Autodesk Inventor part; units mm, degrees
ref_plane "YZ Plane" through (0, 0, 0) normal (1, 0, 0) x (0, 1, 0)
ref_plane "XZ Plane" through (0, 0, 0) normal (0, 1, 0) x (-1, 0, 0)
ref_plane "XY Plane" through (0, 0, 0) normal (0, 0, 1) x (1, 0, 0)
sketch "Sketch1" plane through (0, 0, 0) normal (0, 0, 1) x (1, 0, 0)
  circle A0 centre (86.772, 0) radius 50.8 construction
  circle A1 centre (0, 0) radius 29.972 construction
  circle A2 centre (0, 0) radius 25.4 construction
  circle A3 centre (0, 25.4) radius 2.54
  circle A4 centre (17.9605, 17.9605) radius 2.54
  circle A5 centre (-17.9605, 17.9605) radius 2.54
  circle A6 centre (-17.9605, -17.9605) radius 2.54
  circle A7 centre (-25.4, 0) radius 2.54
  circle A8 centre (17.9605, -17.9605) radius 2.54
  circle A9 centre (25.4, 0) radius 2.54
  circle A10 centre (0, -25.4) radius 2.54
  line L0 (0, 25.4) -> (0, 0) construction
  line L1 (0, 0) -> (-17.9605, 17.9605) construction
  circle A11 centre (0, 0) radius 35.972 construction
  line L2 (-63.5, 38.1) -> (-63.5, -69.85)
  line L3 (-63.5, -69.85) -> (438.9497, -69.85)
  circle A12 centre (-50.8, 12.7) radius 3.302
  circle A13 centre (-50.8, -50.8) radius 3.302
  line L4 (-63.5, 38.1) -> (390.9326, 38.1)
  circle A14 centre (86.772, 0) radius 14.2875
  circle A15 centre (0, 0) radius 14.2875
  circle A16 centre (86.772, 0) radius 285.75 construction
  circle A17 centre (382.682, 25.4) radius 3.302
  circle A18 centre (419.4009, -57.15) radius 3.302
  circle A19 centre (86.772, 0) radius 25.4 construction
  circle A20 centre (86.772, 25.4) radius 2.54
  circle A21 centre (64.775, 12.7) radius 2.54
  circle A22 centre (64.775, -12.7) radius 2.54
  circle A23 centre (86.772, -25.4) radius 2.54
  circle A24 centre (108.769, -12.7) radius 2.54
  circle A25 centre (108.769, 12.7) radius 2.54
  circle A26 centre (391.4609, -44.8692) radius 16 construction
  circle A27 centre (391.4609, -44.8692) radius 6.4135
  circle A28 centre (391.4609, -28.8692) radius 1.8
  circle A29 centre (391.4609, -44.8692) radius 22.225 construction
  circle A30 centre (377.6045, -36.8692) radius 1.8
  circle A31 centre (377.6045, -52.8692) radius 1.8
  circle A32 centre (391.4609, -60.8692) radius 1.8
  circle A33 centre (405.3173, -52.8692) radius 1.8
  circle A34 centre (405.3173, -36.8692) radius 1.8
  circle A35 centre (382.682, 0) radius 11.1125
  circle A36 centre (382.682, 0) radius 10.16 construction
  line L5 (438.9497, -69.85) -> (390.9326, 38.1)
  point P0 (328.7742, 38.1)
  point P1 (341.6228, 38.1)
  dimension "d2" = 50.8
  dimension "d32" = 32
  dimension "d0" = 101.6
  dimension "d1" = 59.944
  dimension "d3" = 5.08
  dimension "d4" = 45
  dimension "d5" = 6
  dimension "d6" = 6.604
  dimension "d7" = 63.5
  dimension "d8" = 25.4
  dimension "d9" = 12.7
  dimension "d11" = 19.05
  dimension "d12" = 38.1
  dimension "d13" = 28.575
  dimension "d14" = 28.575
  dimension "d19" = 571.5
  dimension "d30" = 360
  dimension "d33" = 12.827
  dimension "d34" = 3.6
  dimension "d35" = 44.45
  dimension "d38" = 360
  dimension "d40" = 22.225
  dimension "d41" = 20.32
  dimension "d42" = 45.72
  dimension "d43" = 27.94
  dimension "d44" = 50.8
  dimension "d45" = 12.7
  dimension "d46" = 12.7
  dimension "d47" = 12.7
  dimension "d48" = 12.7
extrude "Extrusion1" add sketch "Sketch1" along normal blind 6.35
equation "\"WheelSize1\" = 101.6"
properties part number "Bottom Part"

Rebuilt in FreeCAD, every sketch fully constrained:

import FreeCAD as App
import Part
import Sketcher
from FreeCAD import Vector
Q = App.Units.Quantity


def add_polygon(sketch, points):
    """Adds a closed chain of lines whose ends are joined by coincident constraints."""
    first, n = sketch.GeometryCount, len(points)
    for a, b in zip(points, points[1:] + points[:1]):
        sketch.addGeometry(Part.LineSegment(App.Vector(*a, 0), App.Vector(*b, 0)), False)
    for i in range(n):
        sketch.addConstraint(Sketcher.Constraint("Coincident", first + i, 2, first + (i + 1) % n, 1))

doc = App.newDocument("Part")
body = doc.addObject("PartDesign::Body", "Body")

sketch1 = body.newObject("Sketcher::SketchObject", "Sketch")
sketch1.AttachmentSupport = (doc.getObject("XY_Plane"), [""])
sketch1.MapMode = "FlatFace"
add_polygon(sketch1, [(390.9, 38.1), (-63.5, 38.1), (-63.5, -69.8), (438.9, -69.8)])
sketch1.addGeometry(Part.Circle(Vector(-50.8, -50.8, 0), Vector(0, 0, 1), 3.3), False)
sketch1.addGeometry(Part.Circle(Vector(-18, -18, 0), Vector(0, 0, 1), 2.5), False)
sketch1.addGeometry(Part.Circle(Vector(0, -25.4, 0), Vector(0, 0, 1), 2.5), False)
sketch1.addGeometry(Part.Circle(Vector(18, -18, 0), Vector(0, 0, 1), 2.5), False)
sketch1.addGeometry(Part.Circle(Vector(86.8, -25.4, 0), Vector(0, 0, 1), 2.5), False)
sketch1.addGeometry(Part.Circle(Vector(391.5, -60.9, 0), Vector(0, 0, 1), 1.8), False)
sketch1.addGeometry(Part.Circle(Vector(419.4, -57.1, 0), Vector(0, 0, 1), 3.3), False)
sketch1.addGeometry(Part.Circle(Vector(377.6, -52.9, 0), Vector(0, 0, 1), 1.8), False)
sketch1.addGeometry(Part.Circle(Vector(405.3, -52.9, 0), Vector(0, 0, 1), 1.8), False)
sketch1.addGeometry(Part.Circle(Vector(391.5, -44.9, 0), Vector(0, 0, 1), 6.4), False)
sketch1.addGeometry(Part.Circle(Vector(377.6, -36.9, 0), Vector(0, 0, 1), 1.8), False)
sketch1.addGeometry(Part.Circle(Vector(405.3, -36.9, 0), Vector(0, 0, 1), 1.8), False)
sketch1.addGeometry(Part.Circle(Vector(391.5, -28.9, 0), Vector(0, 0, 1), 1.8), False)
sketch1.addGeometry(Part.Circle(Vector(-25.4, 0, 0), Vector(0, 0, 1), 2.5), False)
sketch1.addGeometry(Part.Circle(Vector(0, 0, 0), Vector(0, 0, 1), 14.3), False)
sketch1.addGeometry(Part.Circle(Vector(25.4, 0, 0), Vector(0, 0, 1), 2.5), False)
sketch1.addGeometry(Part.Circle(Vector(64.8, -12.7, 0), Vector(0, 0, 1), 2.5), False)
sketch1.addGeometry(Part.Circle(Vector(108.8, -12.7, 0), Vector(0, 0, 1), 2.5), False)
sketch1.addGeometry(Part.Circle(Vector(86.8, 0, 0), Vector(0, 0, 1), 14.3), False)
sketch1.addGeometry(Part.Circle(Vector(-50.8, 12.7, 0), Vector(0, 0, 1), 3.3), False)
sketch1.addGeometry(Part.Circle(Vector(-18, 18, 0), Vector(0, 0, 1), 2.5), False)
sketch1.addGeometry(Part.Circle(Vector(18, 18, 0), Vector(0, 0, 1), 2.5), False)
sketch1.addGeometry(Part.Circle(Vector(0, 25.4, 0), Vector(0, 0, 1), 2.5), False)
sketch1.addGeometry(Part.Circle(Vector(64.8, 12.7, 0), Vector(0, 0, 1), 2.5), False)
sketch1.addGeometry(Part.Circle(Vector(108.8, 12.7, 0), Vector(0, 0, 1), 2.5), False)
sketch1.addGeometry(Part.Circle(Vector(86.8, 25.4, 0), Vector(0, 0, 1), 2.5), False)
sketch1.addGeometry(Part.Circle(Vector(382.7, 0, 0), Vector(0, 0, 1), 11.1), False)
sketch1.addGeometry(Part.Circle(Vector(382.7, 25.4, 0), Vector(0, 0, 1), 3.3), False)
sketch1.addConstraint([
    Sketcher.Constraint("Horizontal", 0),
    Sketcher.Constraint("Vertical", 1),
    Sketcher.Constraint("Horizontal", 2),
    Sketcher.Constraint("Coincident", 18, 3, -1, 1),
    Sketcher.Constraint("Equal", 5, 6),
    Sketcher.Constraint("Equal", 6, 7),
    Sketcher.Constraint("Equal", 7, 8),
    Sketcher.Constraint("Equal", 4, 10),
    Sketcher.Constraint("Equal", 9, 11),
    Sketcher.Constraint("Equal", 11, 12),
    Sketcher.Constraint("Equal", 12, 14),
    Sketcher.Constraint("Equal", 14, 15),
    Sketcher.Constraint("Equal", 15, 16),
    Sketcher.Constraint("Equal", 8, 17),
    Sketcher.Constraint("Equal", 17, 19),
    Sketcher.Constraint("Equal", 19, 20),
    Sketcher.Constraint("Equal", 20, 21),
    Sketcher.Constraint("Equal", 18, 22),
    Sketcher.Constraint("Equal", 10, 23),
    Sketcher.Constraint("Equal", 21, 24),
    Sketcher.Constraint("Equal", 24, 25),
    Sketcher.Constraint("Equal", 25, 26),
    Sketcher.Constraint("Equal", 26, 27),
    Sketcher.Constraint("Equal", 27, 28),
    Sketcher.Constraint("Equal", 28, 29),
    Sketcher.Constraint("Equal", 23, 31),
    Sketcher.Constraint("Symmetric", 17, 3, 19, 3, -1, 1),
    Sketcher.Constraint("Symmetric", 7, 3, 24, 3, -1, 1),
    Sketcher.Constraint("Symmetric", 5, 3, 25, 3, -1, 1),
    Sketcher.Constraint("Symmetric", 6, 3, 26, 3, -1, 1),
    Sketcher.Constraint("Symmetric", 5, 3, 7, 3, -2),
    Sketcher.Constraint("Symmetric", 20, 3, 27, 3, -1),
    Sketcher.Constraint("Symmetric", 21, 3, 28, 3, -1),
    Sketcher.Constraint("Symmetric", 8, 3, 29, 3, -1),
    Sketcher.Constraint("PointOnObject", 6, 3, -2),
    Sketcher.Constraint("PointOnObject", 17, 3, -1),
    Sketcher.Constraint("PointOnObject", 22, 3, -1),
    Sketcher.Constraint("PointOnObject", 30, 3, -1),
    Sketcher.Constraint("Horizontal", 6, 3, 8, 3),
    Sketcher.Constraint("Horizontal", 11, 3, 12, 3),
    Sketcher.Constraint("Horizontal", 14, 3, 15, 3),
    Sketcher.Constraint("Horizontal", 20, 3, 21, 3),
    Sketcher.Constraint("Horizontal", 23, 3, 27, 3),
    Sketcher.Constraint("Horizontal", 29, 3, 31, 3),
    Sketcher.Constraint("Vertical", 9, 3, 13, 3),
    Sketcher.Constraint("Vertical", 11, 3, 14, 3),
    Sketcher.Constraint("Vertical", 12, 3, 15, 3),
    Sketcher.Constraint("Vertical", 13, 3, 16, 3),
    Sketcher.Constraint("Vertical", 8, 3, 22, 3),
    Sketcher.Constraint("Vertical", 4, 3, 23, 3),
    Sketcher.Constraint("Vertical", 30, 3, 31, 3),
    Sketcher.Constraint("Diameter", 5, Q("0.2 in")),
    Sketcher.Constraint("Diameter", 4, Q("0.26 in")),
    Sketcher.Constraint("Diameter", 13, Q("0.505 in")),
    Sketcher.Constraint("Diameter", 18, Q("1.125 in")),
    Sketcher.Constraint("Diameter", 30, Q("0.875 in")),
    Sketcher.Constraint("DistanceX", 4, 3, -1, 1, Q("2 in")),
    Sketcher.Constraint("DistanceY", 4, 3, -1, 1, Q("2 in")),
    Sketcher.Constraint("DistanceY", 6, 3, -1, 1, Q("1 in")),
    Sketcher.Constraint("DistanceX", 17, 3, -1, 1, Q("1 in")),
    Sketcher.Constraint("DistanceY", 20, 3, 27, 3, Q("1 in")),
    Sketcher.Constraint("DistanceY", 23, 3, 0, 2, Q("1 in")),
    Sketcher.Constraint("DistanceX", 0, 2, -1, 1, Q("2.5 in")),
    Sketcher.Constraint("DistanceX", 9, 3, 10, 3, Q("1.1 in")),
    Sketcher.Constraint("DistanceY", 2, 2, 10, 3, Q("0.5 in")),
    Sketcher.Constraint("Diameter", 9, 3.6),
    Sketcher.Constraint("DistanceY", 1, 2, 4, 3, Q("0.75 in")),
    Sketcher.Constraint("Angle", 3, Q("113.98 deg")),
    Sketcher.Constraint("DistanceX", 0, 2, 0, 1, 454.4326),
    Sketcher.Constraint("DistanceX", 5, 3, -1, 1, Q("0.7071 in")),
    Sketcher.Constraint("DistanceY", 5, 3, -1, 1, Q("0.7071 in")),
    Sketcher.Constraint("DistanceY", 13, 3, -1, 1, Q("1.7665 in")),
    Sketcher.Constraint("DistanceX", -1, 1, 20, 3, Q("2.5502 in")),
    Sketcher.Constraint("DistanceX", 8, 3, 11, 3, Q("11.4501 in")),
    Sketcher.Constraint("DistanceX", 14, 3, 30, 3, Q("0.1999 in")),
    Sketcher.Constraint("DistanceX", 12, 3, 2, 2, Q("1.3241 in")),
    Sketcher.Constraint("DistanceX", 3, 2, 16, 3, Q("0.0208 in")),
    Sketcher.Constraint("DistanceX", -1, 1, 8, 3, 86.772),
    Sketcher.Constraint("DistanceY", 9, 3, -1, 1, 60.8692),
    Sketcher.Constraint("DistanceY", 11, 3, -1, 1, 52.8692),
    Sketcher.Constraint("DistanceY", 14, 3, -1, 1, 36.8692),
    Sketcher.Constraint("DistanceY", 16, 3, -1, 1, 28.8692),
    Sketcher.Constraint("DistanceX", -1, 1, 21, 3, 108.769),
])
pad1 = body.newObject("PartDesign::Pad", "Pad")
pad1.Profile = sketch1
pad1.Length = Q("0.25 in")

doc.recompute()
